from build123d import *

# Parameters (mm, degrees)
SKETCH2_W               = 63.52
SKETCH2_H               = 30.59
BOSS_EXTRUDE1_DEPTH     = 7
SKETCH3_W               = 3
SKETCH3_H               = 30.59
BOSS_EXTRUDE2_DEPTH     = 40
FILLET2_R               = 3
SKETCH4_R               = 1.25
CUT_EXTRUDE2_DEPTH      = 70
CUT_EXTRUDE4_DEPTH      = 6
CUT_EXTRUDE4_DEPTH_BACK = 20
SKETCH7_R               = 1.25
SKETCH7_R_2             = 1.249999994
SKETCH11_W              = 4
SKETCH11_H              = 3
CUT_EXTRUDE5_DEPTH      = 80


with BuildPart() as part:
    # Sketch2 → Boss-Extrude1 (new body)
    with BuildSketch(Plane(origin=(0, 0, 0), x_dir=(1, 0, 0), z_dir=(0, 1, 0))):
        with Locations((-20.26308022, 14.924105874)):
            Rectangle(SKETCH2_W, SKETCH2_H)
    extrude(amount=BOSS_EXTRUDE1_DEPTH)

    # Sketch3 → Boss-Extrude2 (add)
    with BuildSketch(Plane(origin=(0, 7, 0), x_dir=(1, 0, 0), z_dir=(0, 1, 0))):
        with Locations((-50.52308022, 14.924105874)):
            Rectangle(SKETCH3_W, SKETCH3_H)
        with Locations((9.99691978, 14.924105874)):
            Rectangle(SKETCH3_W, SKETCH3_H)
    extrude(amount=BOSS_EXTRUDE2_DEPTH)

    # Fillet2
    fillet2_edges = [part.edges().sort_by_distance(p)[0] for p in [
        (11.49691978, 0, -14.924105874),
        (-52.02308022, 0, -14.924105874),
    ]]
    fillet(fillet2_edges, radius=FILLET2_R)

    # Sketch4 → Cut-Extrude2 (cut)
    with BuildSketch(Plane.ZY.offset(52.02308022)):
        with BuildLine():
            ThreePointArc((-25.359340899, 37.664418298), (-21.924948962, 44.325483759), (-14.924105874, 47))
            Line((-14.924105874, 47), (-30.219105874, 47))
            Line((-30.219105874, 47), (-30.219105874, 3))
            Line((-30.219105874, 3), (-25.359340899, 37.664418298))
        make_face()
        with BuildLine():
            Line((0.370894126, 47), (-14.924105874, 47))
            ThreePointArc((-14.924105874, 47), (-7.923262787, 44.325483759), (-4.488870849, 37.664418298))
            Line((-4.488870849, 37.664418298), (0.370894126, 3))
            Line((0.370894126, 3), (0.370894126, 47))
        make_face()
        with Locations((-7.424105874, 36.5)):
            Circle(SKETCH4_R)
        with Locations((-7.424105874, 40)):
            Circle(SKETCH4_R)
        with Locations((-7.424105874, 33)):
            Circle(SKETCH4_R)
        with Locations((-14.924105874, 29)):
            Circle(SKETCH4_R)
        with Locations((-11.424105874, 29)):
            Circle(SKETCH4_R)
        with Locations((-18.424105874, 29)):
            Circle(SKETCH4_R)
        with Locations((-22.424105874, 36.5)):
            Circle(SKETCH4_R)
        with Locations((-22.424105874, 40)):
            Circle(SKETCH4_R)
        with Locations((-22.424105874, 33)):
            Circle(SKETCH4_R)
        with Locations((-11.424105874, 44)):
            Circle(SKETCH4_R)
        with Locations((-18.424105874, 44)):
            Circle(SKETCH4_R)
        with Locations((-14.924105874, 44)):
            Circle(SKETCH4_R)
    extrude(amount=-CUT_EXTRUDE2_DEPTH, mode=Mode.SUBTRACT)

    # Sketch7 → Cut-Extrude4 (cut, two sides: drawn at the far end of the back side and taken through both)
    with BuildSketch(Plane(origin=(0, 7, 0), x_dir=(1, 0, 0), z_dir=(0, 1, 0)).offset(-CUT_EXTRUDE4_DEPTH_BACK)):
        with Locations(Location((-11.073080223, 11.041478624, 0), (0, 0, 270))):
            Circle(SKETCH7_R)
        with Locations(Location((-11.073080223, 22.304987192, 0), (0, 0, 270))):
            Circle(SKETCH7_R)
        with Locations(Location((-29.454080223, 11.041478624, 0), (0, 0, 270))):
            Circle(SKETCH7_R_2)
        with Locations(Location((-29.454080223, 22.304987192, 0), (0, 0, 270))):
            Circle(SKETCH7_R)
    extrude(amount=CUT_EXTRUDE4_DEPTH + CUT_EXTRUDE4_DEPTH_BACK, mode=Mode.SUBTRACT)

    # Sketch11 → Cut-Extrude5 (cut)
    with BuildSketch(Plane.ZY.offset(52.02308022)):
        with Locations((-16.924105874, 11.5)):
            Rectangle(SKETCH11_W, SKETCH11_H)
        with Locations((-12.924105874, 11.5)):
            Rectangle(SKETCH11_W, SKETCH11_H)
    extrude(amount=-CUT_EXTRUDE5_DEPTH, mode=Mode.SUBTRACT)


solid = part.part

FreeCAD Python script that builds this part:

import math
import FreeCAD as App
import Part
import Sketcher

V = App.Vector


def edges_at(feature, points):
    """Names of the edges that pass closest to the given points."""
    edges = feature.Shape.Edges
    near = lambda p: min(range(len(edges)), key=lambda i: edges[i].distToShape(Part.Vertex(*p))[0])
    return sorted({f"Edge{near(p) + 1}" for p in points})


def add_polygon(sketch, points):
    """Adds a closed chain of lines whose ends are joined by coincident constraints."""
    first, n = sketch.GeometryCount, len(points)
    for a, b in zip(points, points[1:] + points[:1]):
        sketch.addGeometry(Part.LineSegment(App.Vector(*a, 0), App.Vector(*b, 0)), False)
    for i in range(n):
        sketch.addConstraint(Sketcher.Constraint("Coincident", first + i, 2, first + (i + 1) % n, 1))

doc = App.newDocument("Part")
params = doc.addObject("Spreadsheet::Sheet", "Params")
for row, (alias, value) in enumerate([
    ("sketch1_width", "63.52 mm"),
    ("sketch1_height", "30.59 mm"),
    ("pad1_length", "7 mm"),
    ("sketch2_width", "3 mm"),
    ("sketch2_height", "30.59 mm"),
    ("pad2_length", "40 mm"),
    ("fillet_radius", "3 mm"),
    ("sketch3_diameter", "2.5 mm"),
    ("sketch3_radius", "10.5 mm"),
    ("sketch3_width", "44 mm"),
    ("pocket1_length", "70 mm"),
    ("sketch4_diameter", "2.5 mm"),
    ("sketch5_width", "3 mm"),
    ("sketch5_height", "8 mm"),
    ("pocket3_length", "80 mm"),
], start=1):
    params.set(f"A{row}", alias)
    params.set(f"B{row}", "=" + value)
    params.setAlias(f"B{row}", alias)

body = doc.addObject("PartDesign::Body", "Body")

sketch1 = body.newObject("Sketcher::SketchObject", "Sketch")
sketch1.AttachmentSupport = (doc.getObject("XZ_Plane"), [""])
sketch1.MapMode = "FlatFace"
add_polygon(sketch1, [(-52.02308, -30.219106), (-52.02308, 0.370894), (11.49692, 0.370894), (11.49692, -30.219106)])
sketch1.addConstraint(Sketcher.Constraint("Vertical", 0))
sketch1.addConstraint(Sketcher.Constraint("Horizontal", 1))
sketch1.addConstraint(Sketcher.Constraint("Vertical", 2))
sketch1.addConstraint(Sketcher.Constraint("Horizontal", 3))
sketch1.addConstraint(Sketcher.Constraint("DistanceX", 1, 1, 1, 2, 63.52))
sketch1.addConstraint(Sketcher.Constraint("DistanceY", 0, 1, 0, 2, 30.59))
sketch1.addConstraint(Sketcher.Constraint("DistanceX", 0, 2, -1, 1, 52.02308))
sketch1.addConstraint(Sketcher.Constraint("DistanceY", -1, 1, 0, 2, 0.370894))
sketch1.setExpression("Constraints[8]", "Params.sketch1_width")
sketch1.setExpression("Constraints[9]", "Params.sketch1_height")
pad1 = body.newObject("PartDesign::Pad", "Pad")
pad1.Profile = sketch1
pad1.setExpression("Length", "Params.pad1_length")
pad1.Reversed = True

sketch2 = body.newObject("Sketcher::SketchObject", "Sketch001")
sketch2.AttachmentSupport = (doc.getObject("XZ_Plane"), [""])
sketch2.MapMode = "FlatFace"
sketch2.AttachmentOffset = App.Placement(V(0, 0, -7), App.Rotation())
add_polygon(sketch2, [(-52.02308, -30.219106), (-52.02308, 0.370894), (-49.02308, 0.370894), (-49.02308, -30.219106)])
add_polygon(sketch2, [(8.49692, -30.219106), (8.49692, 0.370894), (11.49692, 0.370894), (11.49692, -30.219106)])
sketch2.addConstraint(Sketcher.Constraint("Vertical", 0))
sketch2.addConstraint(Sketcher.Constraint("Horizontal", 1))
sketch2.addConstraint(Sketcher.Constraint("Vertical", 2))
sketch2.addConstraint(Sketcher.Constraint("Horizontal", 3))
sketch2.addConstraint(Sketcher.Constraint("Vertical", 4))
sketch2.addConstraint(Sketcher.Constraint("Horizontal", 5))
sketch2.addConstraint(Sketcher.Constraint("Vertical", 6))
sketch2.addConstraint(Sketcher.Constraint("Horizontal", 7))
sketch2.addConstraint(Sketcher.Constraint("Horizontal", 1, 2, 4, 2))
sketch2.addConstraint(Sketcher.Constraint("Horizontal", 3, 2, 6, 2))
sketch2.addConstraint(Sketcher.Constraint("Equal", 3, 5))
sketch2.addConstraint(Sketcher.Constraint("DistanceX", 1, 1, 1, 2, 3.0))
sketch2.addConstraint(Sketcher.Constraint("DistanceY", 0, 1, 0, 2, 30.59))
sketch2.addConstraint(Sketcher.Constraint("DistanceX", 1, 2, 4, 2, 57.52))
sketch2.addConstraint(Sketcher.Constraint("DistanceX", 0, 2, -1, 1, 52.02308))
sketch2.addConstraint(Sketcher.Constraint("DistanceY", -1, 1, 0, 2, 0.370894))
sketch2.setExpression("Constraints[19]", "Params.sketch2_width")
sketch2.setExpression("Constraints[20]", "Params.sketch2_height")
pad2 = body.newObject("PartDesign::Pad", "Pad001")
pad2.Profile = sketch2
pad2.setExpression("Length", "Params.pad2_length")
pad2.Reversed = True
doc.recompute()

fillet = body.newObject("PartDesign::Fillet", "Fillet")
fillet.Base = (pad2, edges_at(pad2, [(11.497, 0, -14.924), (-52.023, 0, -14.924)]))
fillet.setExpression("Radius", "Params.fillet_radius")

sketch3 = body.newObject("Sketcher::SketchObject", "Sketch002")
sketch3.AttachmentSupport = (doc.getObject("YZ_Plane"), [""])
sketch3.MapMode = "FlatFace"
sketch3.AttachmentOffset = App.Placement(V(0, 0, -52.02308), App.Rotation())
sketch3.addGeometry(Part.ArcOfCircle(Part.Circle(V(36.5, -14.924106, 0), V(0, 0, 1), 10.5), math.radians(-83.632975), math.radians(0)), False)
sketch3.addGeometry(Part.LineSegment(V(47, -14.924106, 0), V(47, -30.219106, 0)), False)
sketch3.addGeometry(Part.LineSegment(V(47, -30.219106, 0), V(3, -30.219106, 0)), False)
sketch3.addGeometry(Part.LineSegment(V(3, -30.219106, 0), V(37.664418, -25.359341, 0)), False)
sketch3.addGeometry(Part.LineSegment(V(47, 0.370894, 0), V(47, -14.924106, 0)), False)
sketch3.addGeometry(Part.ArcOfCircle(Part.Circle(V(36.5, -14.924106, 0), V(0, 0, 1), 10.5), math.radians(0), math.radians(83.632975)), False)
sketch3.addGeometry(Part.LineSegment(V(37.664418, -4.488871, 0), V(3, 0.370894, 0)), False)
sketch3.addGeometry(Part.LineSegment(V(3, 0.370894, 0), V(47, 0.370894, 0)), False)
sketch3.addGeometry(Part.Circle(V(36.5, -7.424106, 0), V(0, 0, 1), 1.25), False)
sketch3.addGeometry(Part.Circle(V(40, -7.424106, 0), V(0, 0, 1), 1.25), False)
sketch3.addGeometry(Part.Circle(V(33, -7.424106, 0), V(0, 0, 1), 1.25), False)
sketch3.addGeometry(Part.Circle(V(29, -14.924106, 0), V(0, 0, 1), 1.25), False)
sketch3.addGeometry(Part.Circle(V(29, -11.424106, 0), V(0, 0, 1), 1.25), False)
sketch3.addGeometry(Part.Circle(V(29, -18.424106, 0), V(0, 0, 1), 1.25), False)
sketch3.addGeometry(Part.Circle(V(36.5, -22.424106, 0), V(0, 0, 1), 1.25), False)
sketch3.addGeometry(Part.Circle(V(40, -22.424106, 0), V(0, 0, 1), 1.25), False)
sketch3.addGeometry(Part.Circle(V(33, -22.424106, 0), V(0, 0, 1), 1.25), False)
sketch3.addGeometry(Part.Circle(V(44, -11.424106, 0), V(0, 0, 1), 1.25), False)
sketch3.addGeometry(Part.Circle(V(44, -18.424106, 0), V(0, 0, 1), 1.25), False)
sketch3.addGeometry(Part.Circle(V(44, -14.924106, 0), V(0, 0, 1), 1.25), False)
sketch3.addConstraint(Sketcher.Constraint("Tangent", 0, 2, 1, 1))
sketch3.addConstraint(Sketcher.Constraint("Coincident", 1, 2, 2, 1))
sketch3.addConstraint(Sketcher.Constraint("Coincident", 2, 2, 3, 1))
sketch3.addConstraint(Sketcher.Constraint("Coincident", 3, 2, 0, 1))
sketch3.addConstraint(Sketcher.Constraint("Tangent", 4, 2, 5, 1))
sketch3.addConstraint(Sketcher.Constraint("Coincident", 5, 2, 6, 1))
sketch3.addConstraint(Sketcher.Constraint("Coincident", 6, 2, 7, 1))
sketch3.addConstraint(Sketcher.Constraint("Coincident", 7, 2, 4, 1))
sketch3.addConstraint(Sketcher.Constraint("Vertical", 1))
sketch3.addConstraint(Sketcher.Constraint("Horizontal", 2))
sketch3.addConstraint(Sketcher.Constraint("Vertical", 4))
sketch3.addConstraint(Sketcher.Constraint("Horizontal", 7))
sketch3.addConstraint(Sketcher.Constraint("Coincident", 5, 3, 0, 3))
sketch3.addConstraint(Sketcher.Constraint("Equal", 0, 5))
sketch3.addConstraint(Sketcher.Constraint("Equal", 8, 9))
sketch3.addConstraint(Sketcher.Constraint("Equal", 9, 10))
sketch3.addConstraint(Sketcher.Constraint("Equal", 10, 11))
sketch3.addConstraint(Sketcher.Constraint("Equal", 11, 12))
sketch3.addConstraint(Sketcher.Constraint("Equal", 12, 13))
sketch3.addConstraint(Sketcher.Constraint("Equal", 13, 14))
sketch3.addConstraint(Sketcher.Constraint("Equal", 14, 15))
sketch3.addConstraint(Sketcher.Constraint("Equal", 15, 16))
sketch3.addConstraint(Sketcher.Constraint("Equal", 16, 17))
sketch3.addConstraint(Sketcher.Constraint("Equal", 17, 18))
sketch3.addConstraint(Sketcher.Constraint("Equal", 18, 19))
sketch3.addConstraint(Sketcher.Constraint("Horizontal", 8, 3, 9, 3))
sketch3.addConstraint(Sketcher.Constraint("Horizontal", 9, 3, 10, 3))
sketch3.addConstraint(Sketcher.Constraint("Horizontal", 5, 3, 11, 3))
sketch3.addConstraint(Sketcher.Constraint("Horizontal", 14, 3, 15, 3))
sketch3.addConstraint(Sketcher.Constraint("Horizontal", 15, 3, 16, 3))
sketch3.addConstraint(Sketcher.Constraint("Horizontal", 12, 3, 17, 3))
sketch3.addConstraint(Sketcher.Constraint("Horizontal", 13, 3, 18, 3))
sketch3.addConstraint(Sketcher.Constraint("Horizontal", 11, 3, 19, 3))
sketch3.addConstraint(Sketcher.Constraint("Vertical", 5, 3, 8, 3))
sketch3.addConstraint(Sketcher.Constraint("Vertical", 11, 3, 12, 3))
sketch3.addConstraint(Sketcher.Constraint("Vertical", 12, 3, 13, 3))
sketch3.addConstraint(Sketcher.Constraint("Vertical", 8, 3, 14, 3))
sketch3.addConstraint(Sketcher.Constraint("Vertical", 9, 3, 15, 3))
sketch3.addConstraint(Sketcher.Constraint("Vertical", 10, 3, 16, 3))
sketch3.addConstraint(Sketcher.Constraint("Vertical", 17, 3, 18, 3))
sketch3.addConstraint(Sketcher.Constraint("Vertical", 18, 3, 19, 3))
sketch3.addConstraint(Sketcher.Constraint("Vertical", 3, 2, 5, 2))
sketch3.addConstraint(Sketcher.Constraint("Vertical", 2, 2, 6, 2))
sketch3.addConstraint(Sketcher.Constraint("Equal", 1, 4))
sketch3.addConstraint(Sketcher.Constraint("Diameter", 8, 2.5))
sketch3.addConstraint(Sketcher.Constraint("Radius", 0, 10.5))
sketch3.addConstraint(Sketcher.Constraint("DistanceX", 2, 2, 2, 1, 44.0))
sketch3.addConstraint(Sketcher.Constraint("DistanceX", -1, 1, 9, 3, 40.0))
sketch3.addConstraint(Sketcher.Constraint("DistanceX", -1, 1, 10, 3, 33.0))
sketch3.addConstraint(Sketcher.Constraint("DistanceX", -1, 1, 11, 3, 29.0))
sketch3.addConstraint(Sketcher.Constraint("DistanceX", -1, 1, 17, 3, 44.0))
sketch3.addConstraint(Sketcher.Constraint("DistanceX", -1, 1, 0, 2, 47.0))
sketch3.addConstraint(Sketcher.Constraint("DistanceY", 12, 3, 10, 3, 4.0))
sketch3.addConstraint(Sketcher.Constraint("DistanceY", 13, 3, 12, 3, 7.0))
sketch3.addConstraint(Sketcher.Constraint("DistanceY", 14, 3, 13, 3, 4.0))
sketch3.addConstraint(Sketcher.Constraint("DistanceY", 0, 3, 8, 3, 7.5))
sketch3.addConstraint(Sketcher.Constraint("DistanceY", 1, 2, 1, 1, 15.295))
sketch3.addConstraint(Sketcher.Constraint("DistanceX", -1, 1, 3, 2, 37.664418))
sketch3.addConstraint(Sketcher.Constraint("DistanceY", 3, 2, -1, 1, 25.359341))
sketch3.setExpression("Constraints[44]", "Params.sketch3_diameter")
sketch3.setExpression("Constraints[45]", "Params.sketch3_radius")
sketch3.setExpression("Constraints[46]", "Params.sketch3_width")
pocket1 = body.newObject("PartDesign::Pocket", "Pocket")
pocket1.Profile = sketch3
pocket1.setExpression("Length", "Params.pocket1_length")
pocket1.Reversed = True

sketch4 = body.newObject("Sketcher::SketchObject", "Sketch003")
sketch4.AttachmentSupport = (doc.getObject("XZ_Plane"), [""])
sketch4.MapMode = "FlatFace"
sketch4.AttachmentOffset = App.Placement(V(0, 0, -7), App.Rotation())
sketch4.addGeometry(Part.Circle(V(-11.07308, -11.041479, 0), V(0, 0, 1), 1.25), False)
sketch4.addGeometry(Part.Circle(V(-11.07308, -22.304987, 0), V(0, 0, 1), 1.25), False)
sketch4.addGeometry(Part.Circle(V(-29.45408, -11.041479, 0), V(0, 0, 1), 1.25), False)
sketch4.addGeometry(Part.Circle(V(-29.45408, -22.304987, 0), V(0, 0, 1), 1.25), False)
sketch4.addConstraint(Sketcher.Constraint("Equal", 0, 1))
sketch4.addConstraint(Sketcher.Constraint("Equal", 1, 2))
sketch4.addConstraint(Sketcher.Constraint("Equal", 2, 3))
sketch4.addConstraint(Sketcher.Constraint("Horizontal", 0, 3, 2, 3))
sketch4.addConstraint(Sketcher.Constraint("Horizontal", 1, 3, 3, 3))
sketch4.addConstraint(Sketcher.Constraint("Vertical", 0, 3, 1, 3))
sketch4.addConstraint(Sketcher.Constraint("Vertical", 2, 3, 3, 3))
sketch4.addConstraint(Sketcher.Constraint("Diameter", 0, 2.5))
sketch4.addConstraint(Sketcher.Constraint("DistanceX", 2, 3, 0, 3, 18.381))
sketch4.addConstraint(Sketcher.Constraint("DistanceX", 0, 3, -1, 1, 11.07308))
sketch4.addConstraint(Sketcher.Constraint("DistanceY", 0, 3, -1, 1, 11.041479))
sketch4.addConstraint(Sketcher.Constraint("DistanceY", 1, 3, 0, 3, 11.263509))
sketch4.setExpression("Constraints[7]", "Params.sketch4_diameter")
pocket2 = body.newObject("PartDesign::Pocket", "Pocket001")
pocket2.Profile = sketch4
pocket2.Type = "ThroughAll"
pocket2.Midplane = True

sketch5 = body.newObject("Sketcher::SketchObject", "Sketch004")
sketch5.AttachmentSupport = (doc.getObject("YZ_Plane"), [""])
sketch5.MapMode = "FlatFace"
sketch5.AttachmentOffset = App.Placement(V(0, 0, -52.02308), App.Rotation())
add_polygon(sketch5, [(13, -18.924106), (10, -18.924106), (10, -10.924106), (13, -10.924106)])
sketch5.addConstraint(Sketcher.Constraint("Horizontal", 0))
sketch5.addConstraint(Sketcher.Constraint("Vertical", 1))
sketch5.addConstraint(Sketcher.Constraint("Horizontal", 2))
sketch5.addConstraint(Sketcher.Constraint("Vertical", 3))
sketch5.addConstraint(Sketcher.Constraint("DistanceX", 0, 2, 0, 1, 3.0))
sketch5.addConstraint(Sketcher.Constraint("DistanceY", 1, 1, 1, 2, 8.0))
sketch5.addConstraint(Sketcher.Constraint("DistanceX", -1, 1, 0, 2, 10.0))
sketch5.addConstraint(Sketcher.Constraint("DistanceY", 0, 2, -1, 1, 18.924106))
sketch5.setExpression("Constraints[8]", "Params.sketch5_width")
sketch5.setExpression("Constraints[9]", "Params.sketch5_height")
pocket3 = body.newObject("PartDesign::Pocket", "Pocket002")
pocket3.Profile = sketch5
pocket3.setExpression("Length", "Params.pocket3_length")
pocket3.Reversed = True

doc.recompute()
